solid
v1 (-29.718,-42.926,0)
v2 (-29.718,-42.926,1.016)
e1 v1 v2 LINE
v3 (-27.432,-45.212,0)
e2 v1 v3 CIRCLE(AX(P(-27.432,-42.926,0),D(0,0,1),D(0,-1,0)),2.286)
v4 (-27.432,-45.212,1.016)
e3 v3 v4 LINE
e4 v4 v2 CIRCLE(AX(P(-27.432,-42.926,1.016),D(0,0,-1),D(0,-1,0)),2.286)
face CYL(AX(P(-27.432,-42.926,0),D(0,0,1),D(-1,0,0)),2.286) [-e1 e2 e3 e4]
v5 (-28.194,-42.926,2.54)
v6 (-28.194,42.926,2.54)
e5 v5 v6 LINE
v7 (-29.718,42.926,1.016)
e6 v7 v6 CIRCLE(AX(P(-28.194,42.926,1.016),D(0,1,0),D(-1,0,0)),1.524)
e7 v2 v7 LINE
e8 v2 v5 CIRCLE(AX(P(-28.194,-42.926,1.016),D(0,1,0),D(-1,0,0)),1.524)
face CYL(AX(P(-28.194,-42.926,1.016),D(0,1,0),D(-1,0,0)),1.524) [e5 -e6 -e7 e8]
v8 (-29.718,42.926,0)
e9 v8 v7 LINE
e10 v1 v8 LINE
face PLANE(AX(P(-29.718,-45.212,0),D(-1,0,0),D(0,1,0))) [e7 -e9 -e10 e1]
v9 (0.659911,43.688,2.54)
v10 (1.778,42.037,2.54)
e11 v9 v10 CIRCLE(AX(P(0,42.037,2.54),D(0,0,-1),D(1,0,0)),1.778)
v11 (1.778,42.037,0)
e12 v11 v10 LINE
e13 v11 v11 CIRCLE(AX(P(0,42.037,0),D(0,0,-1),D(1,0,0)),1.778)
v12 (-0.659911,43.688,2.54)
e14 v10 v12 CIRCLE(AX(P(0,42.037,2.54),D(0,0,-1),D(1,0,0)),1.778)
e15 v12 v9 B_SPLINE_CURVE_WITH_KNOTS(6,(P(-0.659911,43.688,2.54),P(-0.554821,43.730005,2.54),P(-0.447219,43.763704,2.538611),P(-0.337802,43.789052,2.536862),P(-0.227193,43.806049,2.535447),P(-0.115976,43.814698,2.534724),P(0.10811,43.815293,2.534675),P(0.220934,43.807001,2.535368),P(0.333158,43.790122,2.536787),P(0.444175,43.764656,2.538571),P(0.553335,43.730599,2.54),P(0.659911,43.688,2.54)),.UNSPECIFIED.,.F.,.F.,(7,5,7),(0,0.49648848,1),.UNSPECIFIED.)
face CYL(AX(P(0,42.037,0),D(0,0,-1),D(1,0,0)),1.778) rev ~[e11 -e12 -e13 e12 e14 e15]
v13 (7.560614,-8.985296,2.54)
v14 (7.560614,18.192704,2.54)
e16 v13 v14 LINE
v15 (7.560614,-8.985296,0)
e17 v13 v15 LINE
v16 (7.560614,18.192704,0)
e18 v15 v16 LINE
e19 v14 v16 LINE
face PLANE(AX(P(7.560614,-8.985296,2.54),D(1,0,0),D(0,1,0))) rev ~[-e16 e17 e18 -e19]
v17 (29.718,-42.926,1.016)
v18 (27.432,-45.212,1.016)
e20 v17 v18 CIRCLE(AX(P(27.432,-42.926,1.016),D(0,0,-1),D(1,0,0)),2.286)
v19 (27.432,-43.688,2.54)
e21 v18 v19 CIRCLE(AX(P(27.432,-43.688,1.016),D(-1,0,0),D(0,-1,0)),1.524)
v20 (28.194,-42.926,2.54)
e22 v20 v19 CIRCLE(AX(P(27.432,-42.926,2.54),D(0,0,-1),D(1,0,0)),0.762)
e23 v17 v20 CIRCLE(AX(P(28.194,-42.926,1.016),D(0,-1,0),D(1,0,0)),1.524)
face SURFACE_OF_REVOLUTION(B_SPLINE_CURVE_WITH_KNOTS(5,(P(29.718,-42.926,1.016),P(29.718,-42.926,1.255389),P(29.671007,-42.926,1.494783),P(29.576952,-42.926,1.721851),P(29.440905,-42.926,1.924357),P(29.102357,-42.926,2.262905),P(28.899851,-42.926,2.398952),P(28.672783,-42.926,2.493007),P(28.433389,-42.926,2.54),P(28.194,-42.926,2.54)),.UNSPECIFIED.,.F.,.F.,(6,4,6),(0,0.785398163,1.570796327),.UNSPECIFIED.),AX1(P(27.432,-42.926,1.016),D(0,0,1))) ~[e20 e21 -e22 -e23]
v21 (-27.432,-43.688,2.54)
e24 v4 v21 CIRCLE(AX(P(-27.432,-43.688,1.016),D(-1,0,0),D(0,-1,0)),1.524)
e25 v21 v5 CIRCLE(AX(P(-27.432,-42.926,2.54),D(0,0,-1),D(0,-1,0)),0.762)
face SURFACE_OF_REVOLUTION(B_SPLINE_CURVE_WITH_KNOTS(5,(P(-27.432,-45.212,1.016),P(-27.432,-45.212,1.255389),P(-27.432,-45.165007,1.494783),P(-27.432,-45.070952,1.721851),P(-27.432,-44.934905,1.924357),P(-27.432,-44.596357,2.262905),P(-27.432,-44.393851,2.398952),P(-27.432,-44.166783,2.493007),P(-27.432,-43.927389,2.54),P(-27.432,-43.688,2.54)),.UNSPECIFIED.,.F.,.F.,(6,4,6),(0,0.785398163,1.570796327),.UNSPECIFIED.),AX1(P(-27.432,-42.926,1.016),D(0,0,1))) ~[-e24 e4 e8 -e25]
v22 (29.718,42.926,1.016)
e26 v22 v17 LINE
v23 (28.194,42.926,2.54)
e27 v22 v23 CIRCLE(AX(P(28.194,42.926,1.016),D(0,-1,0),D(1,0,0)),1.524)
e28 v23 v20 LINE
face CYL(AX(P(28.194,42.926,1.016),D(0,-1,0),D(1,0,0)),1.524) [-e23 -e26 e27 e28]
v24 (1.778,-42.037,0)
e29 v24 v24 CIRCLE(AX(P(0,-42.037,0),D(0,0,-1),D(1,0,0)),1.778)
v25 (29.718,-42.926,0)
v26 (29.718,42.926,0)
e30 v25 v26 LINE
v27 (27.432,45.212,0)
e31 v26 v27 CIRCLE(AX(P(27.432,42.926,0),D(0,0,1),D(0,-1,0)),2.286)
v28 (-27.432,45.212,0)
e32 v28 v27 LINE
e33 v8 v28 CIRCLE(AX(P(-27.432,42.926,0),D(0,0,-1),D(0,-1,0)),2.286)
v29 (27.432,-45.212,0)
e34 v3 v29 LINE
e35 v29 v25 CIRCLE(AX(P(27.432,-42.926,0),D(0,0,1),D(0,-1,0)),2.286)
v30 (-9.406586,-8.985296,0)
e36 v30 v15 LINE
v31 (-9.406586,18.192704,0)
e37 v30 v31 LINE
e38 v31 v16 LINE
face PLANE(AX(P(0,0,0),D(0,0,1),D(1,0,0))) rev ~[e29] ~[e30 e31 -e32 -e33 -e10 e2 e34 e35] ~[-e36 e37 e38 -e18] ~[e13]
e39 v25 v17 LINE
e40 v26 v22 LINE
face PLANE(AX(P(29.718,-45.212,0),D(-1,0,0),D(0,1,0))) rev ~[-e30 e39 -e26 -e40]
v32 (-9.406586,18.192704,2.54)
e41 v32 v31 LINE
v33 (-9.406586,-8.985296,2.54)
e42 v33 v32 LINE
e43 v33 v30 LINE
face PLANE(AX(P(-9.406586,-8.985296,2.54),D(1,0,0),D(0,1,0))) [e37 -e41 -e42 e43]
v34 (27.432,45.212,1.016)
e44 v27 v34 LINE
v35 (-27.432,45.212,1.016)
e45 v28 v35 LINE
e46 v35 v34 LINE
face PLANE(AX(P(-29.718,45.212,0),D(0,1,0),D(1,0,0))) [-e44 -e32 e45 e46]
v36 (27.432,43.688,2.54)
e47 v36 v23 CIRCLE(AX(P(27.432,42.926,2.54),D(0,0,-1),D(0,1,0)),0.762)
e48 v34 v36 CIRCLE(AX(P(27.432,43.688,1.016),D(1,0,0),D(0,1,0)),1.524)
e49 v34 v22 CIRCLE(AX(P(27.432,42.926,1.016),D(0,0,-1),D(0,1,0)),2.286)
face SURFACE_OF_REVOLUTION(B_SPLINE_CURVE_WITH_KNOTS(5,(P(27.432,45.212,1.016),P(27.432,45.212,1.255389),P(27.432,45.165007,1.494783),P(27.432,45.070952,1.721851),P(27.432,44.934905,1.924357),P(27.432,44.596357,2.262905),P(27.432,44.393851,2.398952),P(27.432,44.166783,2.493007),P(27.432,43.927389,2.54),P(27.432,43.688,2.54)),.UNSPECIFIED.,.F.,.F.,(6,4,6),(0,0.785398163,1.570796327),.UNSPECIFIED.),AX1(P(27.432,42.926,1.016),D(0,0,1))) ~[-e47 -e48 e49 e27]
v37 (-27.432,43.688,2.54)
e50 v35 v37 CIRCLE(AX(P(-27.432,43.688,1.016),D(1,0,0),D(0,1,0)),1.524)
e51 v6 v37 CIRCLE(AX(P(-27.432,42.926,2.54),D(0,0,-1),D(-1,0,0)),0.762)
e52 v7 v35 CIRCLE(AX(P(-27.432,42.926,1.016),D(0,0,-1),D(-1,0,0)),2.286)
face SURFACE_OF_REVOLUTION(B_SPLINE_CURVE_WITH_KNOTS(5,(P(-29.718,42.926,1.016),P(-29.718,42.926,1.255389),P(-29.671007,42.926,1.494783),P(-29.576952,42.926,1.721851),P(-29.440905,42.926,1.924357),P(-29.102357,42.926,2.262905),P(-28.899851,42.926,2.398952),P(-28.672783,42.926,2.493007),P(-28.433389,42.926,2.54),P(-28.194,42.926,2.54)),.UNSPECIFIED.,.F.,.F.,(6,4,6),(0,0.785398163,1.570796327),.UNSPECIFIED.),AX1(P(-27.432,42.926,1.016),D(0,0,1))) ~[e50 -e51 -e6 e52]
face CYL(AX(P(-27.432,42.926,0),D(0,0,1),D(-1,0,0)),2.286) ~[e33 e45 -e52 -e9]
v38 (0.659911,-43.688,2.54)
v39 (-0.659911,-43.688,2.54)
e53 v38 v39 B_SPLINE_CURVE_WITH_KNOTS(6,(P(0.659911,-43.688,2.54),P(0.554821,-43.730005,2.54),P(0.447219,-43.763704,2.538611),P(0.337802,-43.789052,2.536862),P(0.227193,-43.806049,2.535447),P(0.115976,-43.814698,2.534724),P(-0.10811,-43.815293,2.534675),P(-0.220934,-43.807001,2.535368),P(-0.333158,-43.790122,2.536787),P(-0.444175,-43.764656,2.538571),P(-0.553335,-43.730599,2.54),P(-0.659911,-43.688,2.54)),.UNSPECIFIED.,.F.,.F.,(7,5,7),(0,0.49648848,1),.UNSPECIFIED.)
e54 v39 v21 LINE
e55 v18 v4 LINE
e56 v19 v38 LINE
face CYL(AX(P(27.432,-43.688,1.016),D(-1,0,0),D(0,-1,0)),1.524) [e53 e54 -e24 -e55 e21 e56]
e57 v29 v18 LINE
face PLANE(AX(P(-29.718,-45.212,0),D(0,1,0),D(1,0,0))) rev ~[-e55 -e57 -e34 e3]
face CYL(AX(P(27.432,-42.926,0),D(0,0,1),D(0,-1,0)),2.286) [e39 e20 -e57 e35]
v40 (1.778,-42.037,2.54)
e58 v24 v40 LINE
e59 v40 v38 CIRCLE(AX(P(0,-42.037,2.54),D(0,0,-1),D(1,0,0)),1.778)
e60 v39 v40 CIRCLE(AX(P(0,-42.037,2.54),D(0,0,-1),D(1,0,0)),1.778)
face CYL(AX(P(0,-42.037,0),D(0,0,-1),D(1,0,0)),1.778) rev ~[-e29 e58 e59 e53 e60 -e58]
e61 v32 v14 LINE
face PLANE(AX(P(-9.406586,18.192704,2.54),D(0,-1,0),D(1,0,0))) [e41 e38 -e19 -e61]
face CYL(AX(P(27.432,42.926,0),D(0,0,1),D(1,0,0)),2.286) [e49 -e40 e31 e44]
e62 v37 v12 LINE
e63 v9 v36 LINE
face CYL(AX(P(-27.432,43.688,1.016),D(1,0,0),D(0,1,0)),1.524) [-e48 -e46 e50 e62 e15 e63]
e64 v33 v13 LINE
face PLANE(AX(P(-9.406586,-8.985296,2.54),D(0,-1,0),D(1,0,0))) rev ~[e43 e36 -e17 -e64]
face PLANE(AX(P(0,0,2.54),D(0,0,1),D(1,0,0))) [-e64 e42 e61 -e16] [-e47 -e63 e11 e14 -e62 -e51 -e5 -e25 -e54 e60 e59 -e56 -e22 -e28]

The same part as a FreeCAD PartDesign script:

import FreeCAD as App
import Part
import Sketcher
Q = App.Units.Quantity


def edges_at(feature, points):
    """Names of the edges that pass closest to the given points."""
    edges = feature.Shape.Edges
    near = lambda p: min(range(len(edges)), key=lambda i: edges[i].distToShape(Part.Vertex(*p))[0])
    return sorted({f"Edge{near(p) + 1}" for p in points})


def add_polygon(sketch, points):
    """Adds a closed chain of lines whose ends are joined by coincident constraints."""
    first, n = sketch.GeometryCount, len(points)
    for a, b in zip(points, points[1:] + points[:1]):
        sketch.addGeometry(Part.LineSegment(App.Vector(*a, 0), App.Vector(*b, 0)), False)
    for i in range(n):
        sketch.addConstraint(Sketcher.Constraint("Coincident", first + i, 2, first + (i + 1) % n, 1))

doc = App.newDocument("Part")
params = doc.addObject("Spreadsheet::Sheet", "Params")
for row, (alias, value) in enumerate([
    ("sketch1_width", "2.34 in"),
    ("sketch1_height", "3.56 in"),
    ("pad1_length", "0.1 in"),
    ("fillet_radius", "0.09 in"),
    ("fillet2_radius", "0.06 in"),
    ("sketch2_diameter", "0.14 in"),
    ("pocket1_length", "1 in"),
    ("sketch3_height", "1.07 in"),
    ("sketch3_width", "0.668 in"),
    ("pocket2_length", "1 in"),
], start=1):
    params.set(f"A{row}", alias)
    params.set(f"B{row}", "=" + value)
    params.setAlias(f"B{row}", alias)

body = doc.addObject("PartDesign::Body", "Body")

# Sketch on XY plane
sketch1 = body.newObject("Sketcher::SketchObject", "Sketch")
sketch1.AttachmentSupport = (doc.getObject("XY_Plane"), [""])
sketch1.MapMode = "FlatFace"
add_polygon(sketch1, [(-30, 45), (-30, -45), (30, -45), (30, 45)])  # lines 0-3
sketch1.addConstraint(Sketcher.Constraint("Vertical", 0))
sketch1.addConstraint(Sketcher.Constraint("Horizontal", 1))
sketch1.addConstraint(Sketcher.Constraint("Vertical", 2))
sketch1.addConstraint(Sketcher.Constraint("Horizontal", 3))
sketch1.addConstraint(Sketcher.Constraint("Symmetric", 0, 2, 2, 2, -1, 1))
sketch1.addConstraint(Sketcher.Constraint("DistanceX", 1, 1, 1, 2, Q("2.34 in")))
sketch1.addConstraint(Sketcher.Constraint("DistanceY", 0, 2, 0, 1, Q("3.56 in")))
sketch1.setExpression("Constraints[9]", "Params.sketch1_width")
sketch1.setExpression("Constraints[10]", "Params.sketch1_height")
pad1 = body.newObject("PartDesign::Pad", "Pad")
pad1.Profile = sketch1
pad1.setExpression("Length", "Params.pad1_length")
doc.recompute()

fillet = body.newObject("PartDesign::Fillet", "Fillet")
fillet.Base = (pad1, edges_at(pad1, [
    (29.718, -45.212, 1.27),
    (-29.718, -45.212, 1.27),
    (29.718, 45.212, 1.27),
    (-29.718, 45.212, 1.27),
]))
fillet.setExpression("Radius", "Params.fillet_radius")
doc.recompute()

fillet2 = body.newObject("PartDesign::Fillet", "Fillet001")
fillet2.Base = (fillet, edges_at(fillet, [(-29.718, 0, 2.54)]))
fillet2.setExpression("Radius", "Params.fillet2_radius")

# Sketch on XY plane
sketch2 = body.newObject("Sketcher::SketchObject", "Sketch001")
sketch2.AttachmentSupport = (doc.getObject("XY_Plane"), [""])
sketch2.MapMode = "FlatFace"
sketch2.addGeometry(Part.Circle(App.Vector(0, -42, 0), App.Vector(0, 0, 1), 1.8), False)
sketch2.addGeometry(Part.Circle(App.Vector(0, 42, 0), App.Vector(0, 0, 1), 1.8), False)
sketch2.addConstraint(Sketcher.Constraint("Equal", 0, 1))
sketch2.addConstraint(Sketcher.Constraint("Symmetric", 0, 3, 1, 3, -1, 1))
sketch2.addConstraint(Sketcher.Constraint("PointOnObject", 0, 3, -2))
sketch2.addConstraint(Sketcher.Constraint("Diameter", 0, Q("0.14 in")))
sketch2.addConstraint(Sketcher.Constraint("DistanceY", 0, 3, 1, 3, Q("3.31 in")))
sketch2.setExpression("Constraints[3]", "Params.sketch2_diameter")
pocket1 = body.newObject("PartDesign::Pocket", "Pocket")
pocket1.Profile = sketch2
pocket1.setExpression("Length", "Params.pocket1_length")
pocket1.Reversed = True

# Sketch on XY plane
sketch3 = body.newObject("Sketcher::SketchObject", "Sketch002")
sketch3.AttachmentSupport = (doc.getObject("XY_Plane"), [""])
sketch3.MapMode = "FlatFace"
sketch3.AttachmentOffset = App.Placement(App.Vector(0, 0, 0.1 * 25.4), App.Rotation())
add_polygon(sketch3, [(-9, 18), (-9, -9), (8, -9), (8, 18)])  # lines 0-3
sketch3.addConstraint(Sketcher.Constraint("Vertical", 0))
sketch3.addConstraint(Sketcher.Constraint("Horizontal", 1))
sketch3.addConstraint(Sketcher.Constraint("Vertical", 2))
sketch3.addConstraint(Sketcher.Constraint("Horizontal", 3))
sketch3.addConstraint(Sketcher.Constraint("DistanceY", 0, 2, 0, 1, Q("1.07 in")))
sketch3.addConstraint(Sketcher.Constraint("DistanceX", 1, 1, 1, 2, Q("0.668 in")))
sketch3.addConstraint(Sketcher.Constraint("DistanceX", 0, 2, -1, 1, 9.406586))
sketch3.addConstraint(Sketcher.Constraint("DistanceY", 0, 2, -1, 1, 8.985296))
sketch3.setExpression("Constraints[8]", "Params.sketch3_height")
sketch3.setExpression("Constraints[9]", "Params.sketch3_width")
pocket2 = body.newObject("PartDesign::Pocket", "Pocket001")
pocket2.Profile = sketch3
pocket2.setExpression("Length", "Params.pocket2_length")

doc.recompute()
